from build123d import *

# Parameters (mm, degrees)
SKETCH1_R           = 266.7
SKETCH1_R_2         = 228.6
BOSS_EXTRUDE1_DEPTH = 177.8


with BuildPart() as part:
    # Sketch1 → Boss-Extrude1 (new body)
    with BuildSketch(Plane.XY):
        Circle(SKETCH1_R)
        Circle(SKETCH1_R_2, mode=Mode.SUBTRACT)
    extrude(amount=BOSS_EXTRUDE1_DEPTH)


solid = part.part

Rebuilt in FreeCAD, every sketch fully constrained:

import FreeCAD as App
import Part
import Sketcher
from FreeCAD import Vector
Q = App.Units.Quantity

doc = App.newDocument("Part")
params = doc.addObject("Spreadsheet::Sheet", "Params")
for row, (alias, value) in enumerate([
    ("sketch1_diameter", "21 in"),
    ("sketch1_diameter2", "18 in"),
    ("pad1_length", "7 in"),
], start=1):
    params.set(f"A{row}", alias)
    params.set(f"B{row}", "=" + value)
    params.setAlias(f"B{row}", alias)

body = doc.addObject("PartDesign::Body", "Body")

# Sketch on XY plane
sketch1 = body.newObject("Sketcher::SketchObject", "Sketch")
sketch1.AttachmentSupport = (doc.getObject("XY_Plane"), [""])
sketch1.MapMode = "FlatFace"
sketch1.addGeometry([
    Part.Circle(Vector(0, 0, 0), Vector(0, 0, 1), 267),
    Part.Circle(Vector(0, 0, 0), Vector(0, 0, 1), 229),
], False)
sketch1.addConstraint([
    Sketcher.Constraint("Coincident", 0, 3, -1, 1),
    Sketcher.Constraint("Coincident", 1, 3, -1, 1),
    Sketcher.Constraint("Diameter", 0, Q("21 in")),
    Sketcher.Constraint("Diameter", 1, Q("18 in")),
])
sketch1.setExpression("Constraints[2]", "Params.sketch1_diameter")
sketch1.setExpression("Constraints[3]", "Params.sketch1_diameter2")
pad1 = body.newObject("PartDesign::Pad", "Pad")
pad1.Profile = sketch1
pad1.setExpression("Length", "Params.pad1_length")

doc.recompute()
